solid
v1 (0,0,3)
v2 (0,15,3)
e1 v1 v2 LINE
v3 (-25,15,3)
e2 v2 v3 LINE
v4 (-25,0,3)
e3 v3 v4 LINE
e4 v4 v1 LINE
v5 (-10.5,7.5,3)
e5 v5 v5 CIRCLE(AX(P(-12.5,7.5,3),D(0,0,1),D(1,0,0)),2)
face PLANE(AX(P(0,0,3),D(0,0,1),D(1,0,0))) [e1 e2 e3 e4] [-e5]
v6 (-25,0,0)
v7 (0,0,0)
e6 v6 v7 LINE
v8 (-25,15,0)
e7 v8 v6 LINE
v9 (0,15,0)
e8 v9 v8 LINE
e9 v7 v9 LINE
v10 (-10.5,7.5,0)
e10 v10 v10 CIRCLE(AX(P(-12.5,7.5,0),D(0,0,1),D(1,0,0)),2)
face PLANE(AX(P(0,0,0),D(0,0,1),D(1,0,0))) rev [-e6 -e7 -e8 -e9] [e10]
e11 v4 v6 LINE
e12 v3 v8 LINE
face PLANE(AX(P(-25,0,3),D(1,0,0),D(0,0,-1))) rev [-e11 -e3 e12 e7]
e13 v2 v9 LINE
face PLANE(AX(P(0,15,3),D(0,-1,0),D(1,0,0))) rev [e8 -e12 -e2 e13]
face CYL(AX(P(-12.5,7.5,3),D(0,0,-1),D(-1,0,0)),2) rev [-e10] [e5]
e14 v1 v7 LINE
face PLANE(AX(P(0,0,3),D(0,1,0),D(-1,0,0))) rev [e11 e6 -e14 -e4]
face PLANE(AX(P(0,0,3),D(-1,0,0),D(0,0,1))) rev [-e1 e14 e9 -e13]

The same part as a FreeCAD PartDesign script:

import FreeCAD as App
import Part
import Sketcher

doc = App.newDocument("Part")
params = doc.addObject("Spreadsheet::Sheet", "Params")
for row, (alias, value) in enumerate([
    ("sketch1_diameter", "4 mm"),
    ("sketch1_width", "25 mm"),
    ("sketch1_height", "15 mm"),
    ("pad1_length", "3 mm"),
], start=1):
    params.set(f"A{row}", alias)
    params.set(f"B{row}", "=" + value)
    params.setAlias(f"B{row}", alias)

body = doc.addObject("PartDesign::Body", "Body")

sketch1 = body.newObject("Sketcher::SketchObject", "Sketch")
sketch1.AttachmentSupport = (doc.getObject("XY_Plane"), [""])
sketch1.MapMode = "FlatFace"
sketch1.addGeometry(Part.LineSegment(App.Vector(-25, 15, 0), App.Vector(-25, 0, 0)), False)
sketch1.addGeometry(Part.LineSegment(App.Vector(-25, 0, 0), App.Vector(0, 0, 0)), False)
sketch1.addGeometry(Part.LineSegment(App.Vector(0, 0, 0), App.Vector(0, 15, 0)), False)
sketch1.addGeometry(Part.LineSegment(App.Vector(0, 15, 0), App.Vector(-25, 15, 0)), False)
sketch1.addGeometry(Part.Circle(App.Vector(-12.5, 7.5, 0), App.Vector(0, 0, 1), 2), False)
sketch1.addConstraint(Sketcher.Constraint("Coincident", 0, 2, 1, 1))
sketch1.addConstraint(Sketcher.Constraint("Coincident", 1, 2, 2, 1))
sketch1.addConstraint(Sketcher.Constraint("Coincident", 2, 2, 3, 1))
sketch1.addConstraint(Sketcher.Constraint("Coincident", 3, 2, 0, 1))
sketch1.addConstraint(Sketcher.Constraint("Vertical", 0))
sketch1.addConstraint(Sketcher.Constraint("Horizontal", 1))
sketch1.addConstraint(Sketcher.Constraint("Vertical", 2))
sketch1.addConstraint(Sketcher.Constraint("Horizontal", 3))
sketch1.addConstraint(Sketcher.Constraint("Coincident", 1, 2, -1, 1))
sketch1.addConstraint(Sketcher.Constraint("Diameter", 4, 4.0))
sketch1.addConstraint(Sketcher.Constraint("DistanceX", 1, 1, 1, 2, 25.0))
sketch1.addConstraint(Sketcher.Constraint("DistanceY", 0, 2, 0, 1, 15.0))
sketch1.addConstraint(Sketcher.Constraint("DistanceX", 4, 3, -1, 1, 12.5))
sketch1.addConstraint(Sketcher.Constraint("DistanceY", -1, 1, 4, 3, 7.5))
sketch1.setExpression("Constraints[9]", "Params.sketch1_diameter")
sketch1.setExpression("Constraints[10]", "Params.sketch1_width")
sketch1.setExpression("Constraints[11]", "Params.sketch1_height")
pad1 = body.newObject("PartDesign::Pad", "Pad")
pad1.Profile = sketch1
pad1.setExpression("Length", "Params.pad1_length")

doc.recompute()
